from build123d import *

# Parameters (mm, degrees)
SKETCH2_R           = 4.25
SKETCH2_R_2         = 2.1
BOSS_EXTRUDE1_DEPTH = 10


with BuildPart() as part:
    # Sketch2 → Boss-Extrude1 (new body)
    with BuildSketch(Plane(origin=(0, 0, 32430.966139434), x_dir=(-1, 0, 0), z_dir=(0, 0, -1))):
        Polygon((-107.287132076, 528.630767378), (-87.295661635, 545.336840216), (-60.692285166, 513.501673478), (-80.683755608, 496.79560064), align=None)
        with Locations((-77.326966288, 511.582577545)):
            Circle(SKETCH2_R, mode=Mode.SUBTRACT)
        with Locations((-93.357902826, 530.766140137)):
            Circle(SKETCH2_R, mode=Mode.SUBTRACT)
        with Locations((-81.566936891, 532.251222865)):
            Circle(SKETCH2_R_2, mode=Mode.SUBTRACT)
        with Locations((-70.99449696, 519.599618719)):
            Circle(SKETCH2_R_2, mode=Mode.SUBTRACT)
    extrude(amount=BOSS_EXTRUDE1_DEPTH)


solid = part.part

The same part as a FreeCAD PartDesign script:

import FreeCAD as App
import Part
import Sketcher
from FreeCAD import Vector
Q = App.Units.Quantity


def add_polygon(sketch, points):
    """Adds a closed chain of lines whose ends are joined by coincident constraints."""
    first, n = sketch.GeometryCount, len(points)
    for a, b in zip(points, points[1:] + points[:1]):
        sketch.addGeometry(Part.LineSegment(App.Vector(*a, 0), App.Vector(*b, 0)), False)
    for i in range(n):
        sketch.addConstraint(Sketcher.Constraint("Coincident", first + i, 2, first + (i + 1) % n, 1))

doc = App.newDocument("Part")
params = doc.addObject("Spreadsheet::Sheet", "Params")
for row, (alias, value) in enumerate([
    ("sketch1_diameter", "8.5 mm"),
    ("sketch1_diameter2", "4.2 mm"),
    ("pad1_length", "10 mm"),
], start=1):
    params.set(f"A{row}", alias)
    params.set(f"B{row}", "=" + value)
    params.setAlias(f"B{row}", alias)

body = doc.addObject("PartDesign::Body", "Body")

sketch1 = body.newObject("Sketcher::SketchObject", "Sketch")
sketch1.AttachmentSupport = (doc.getObject("XY_Plane"), [""])
sketch1.MapMode = "FlatFace"
sketch1.AttachmentOffset = App.Placement(Vector(0, 0, 32430.966139), App.Rotation())
add_polygon(sketch1, [(87.295662, 545.33684), (107.287132, 528.630767), (80.683756, 496.795601), (60.692285, 513.501673)])
sketch1.addGeometry(Part.Circle(Vector(77.326966, 511.582578, 0), Vector(0, 0, 1), 4.25), False)
sketch1.addGeometry(Part.Circle(Vector(70.994497, 519.599619, 0), Vector(0, 0, 1), 2.1), False)
sketch1.addGeometry(Part.Circle(Vector(81.566937, 532.251223, 0), Vector(0, 0, 1), 2.1), False)
sketch1.addGeometry(Part.Circle(Vector(93.357903, 530.76614, 0), Vector(0, 0, 1), 4.25), False)
sketch1.addConstraint(Sketcher.Constraint("Equal", 5, 6))
sketch1.addConstraint(Sketcher.Constraint("Equal", 4, 7))
sketch1.addConstraint(Sketcher.Constraint("Perpendicular", 0, 1))
sketch1.addConstraint(Sketcher.Constraint("Perpendicular", 1, 2))
sketch1.addConstraint(Sketcher.Constraint("Perpendicular", 2, 3))
sketch1.addConstraint(Sketcher.Constraint("Diameter", 4, Q("8.5 mm")))
sketch1.addConstraint(Sketcher.Constraint("Diameter", 5, Q("4.2 mm")))
sketch1.addConstraint(Sketcher.Constraint("DistanceY", -1, 1, 1, 2, Q("496.795601 mm")))
sketch1.addConstraint(Sketcher.Constraint("DistanceY", 7, 3, 3, 2, Q("14.5707 mm")))
sketch1.addConstraint(Sketcher.Constraint("Distance", 1, Q("41.487558 mm")))
sketch1.addConstraint(Sketcher.Constraint("DistanceY", -1, 1, 5, 3, Q("519.599619 mm")))
sketch1.addConstraint(Sketcher.Constraint("DistanceY", -1, 1, 7, 3, Q("530.76614 mm")))
sketch1.addConstraint(Sketcher.Constraint("DistanceX", -1, 1, 3, 2, Q("87.295662 mm")))
sketch1.addConstraint(Sketcher.Constraint("DistanceX", 5, 3, 4, 3, Q("6.332469 mm")))
sketch1.addConstraint(Sketcher.Constraint("DistanceY", 4, 3, 5, 3, Q("8.017041 mm")))
sketch1.addConstraint(Sketcher.Constraint("DistanceX", 5, 3, 6, 3, Q("10.57244 mm")))
sketch1.addConstraint(Sketcher.Constraint("DistanceX", 7, 3, 0, 2, Q("13.929229 mm")))
sketch1.addConstraint(Sketcher.Constraint("DistanceY", 4, 3, 0, 2, Q("17.04819 mm")))
sketch1.addConstraint(Sketcher.Constraint("DistanceX", 4, 3, 1, 2, Q("3.356789 mm")))
sketch1.addConstraint(Sketcher.Constraint("DistanceY", 2, 2, 6, 3, Q("18.749549 mm")))
sketch1.setExpression("Constraints[9]", "Params.sketch1_diameter")
sketch1.setExpression("Constraints[10]", "Params.sketch1_diameter2")
pad1 = body.newObject("PartDesign::Pad", "Pad")
pad1.Profile = sketch1
pad1.setExpression("Length", "Params.pad1_length")
pad1.Reversed = True

doc.recompute()
